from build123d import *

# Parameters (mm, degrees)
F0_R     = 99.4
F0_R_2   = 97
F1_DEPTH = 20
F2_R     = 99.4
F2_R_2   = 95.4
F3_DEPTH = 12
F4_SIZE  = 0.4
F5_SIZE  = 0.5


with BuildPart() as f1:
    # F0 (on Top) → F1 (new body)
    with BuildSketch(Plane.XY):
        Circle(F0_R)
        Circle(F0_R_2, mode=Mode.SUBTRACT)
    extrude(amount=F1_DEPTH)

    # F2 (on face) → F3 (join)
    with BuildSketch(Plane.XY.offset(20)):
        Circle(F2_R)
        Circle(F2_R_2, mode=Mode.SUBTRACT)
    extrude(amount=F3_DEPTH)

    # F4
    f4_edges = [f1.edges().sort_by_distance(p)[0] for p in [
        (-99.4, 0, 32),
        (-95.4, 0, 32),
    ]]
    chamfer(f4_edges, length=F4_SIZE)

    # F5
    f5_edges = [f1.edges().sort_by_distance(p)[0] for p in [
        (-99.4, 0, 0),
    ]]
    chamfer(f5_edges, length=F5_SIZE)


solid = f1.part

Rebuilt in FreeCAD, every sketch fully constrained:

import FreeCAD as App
import Part
import Sketcher
from FreeCAD import Vector


def edges_at(feature, points):
    """Names of the edges that pass closest to the given points."""
    edges = feature.Shape.Edges
    near = lambda p: min(range(len(edges)), key=lambda i: edges[i].distToShape(Part.Vertex(*p))[0])
    return sorted({f"Edge{near(p) + 1}" for p in points})

doc = App.newDocument("Part")
params = doc.addObject("Spreadsheet::Sheet", "Params")
for row, (alias, value) in enumerate([
    ("sketch1_diameter", "194 mm"),
    ("sketch1_diameter2", "198.8 mm"),
    ("pad1_length", "20 mm"),
    ("sketch2_diameter", "198.8 mm"),
    ("sketch2_diameter2", "190.8 mm"),
    ("pad2_length", "12 mm"),
    ("chamfer_size", "0.4 mm"),
    ("chamfer2_size", "0.5 mm"),
], start=1):
    params.set(f"A{row}", alias)
    params.set(f"B{row}", "=" + value)
    params.setAlias(f"B{row}", alias)

body = doc.addObject("PartDesign::Body", "Body")

# Sketch on XY plane
sketch1 = body.newObject("Sketcher::SketchObject", "Sketch")
sketch1.AttachmentSupport = (doc.getObject("XY_Plane"), [""])
sketch1.MapMode = "FlatFace"
sketch1.addGeometry([
    Part.Circle(Vector(0, 0, 0), Vector(0, 0, 1), 99),
    Part.Circle(Vector(0, 0, 0), Vector(0, 0, 1), 97),
], False)
sketch1.addConstraint([
    Sketcher.Constraint("Coincident", 0, 3, -1, 1),
    Sketcher.Constraint("Coincident", 1, 3, -1, 1),
    Sketcher.Constraint("Diameter", 1, 194.0),
    Sketcher.Constraint("Diameter", 0, 198.8),
])
sketch1.setExpression("Constraints[2]", "Params.sketch1_diameter")
sketch1.setExpression("Constraints[3]", "Params.sketch1_diameter2")
pad1 = body.newObject("PartDesign::Pad", "Pad")
pad1.Profile = sketch1
pad1.setExpression("Length", "Params.pad1_length")

# Sketch on XY plane
sketch2 = body.newObject("Sketcher::SketchObject", "Sketch001")
sketch2.AttachmentSupport = (doc.getObject("XY_Plane"), [""])
sketch2.MapMode = "FlatFace"
sketch2.AttachmentOffset = App.Placement(Vector(0, 0, 20), App.Rotation())
sketch2.addGeometry([
    Part.Circle(Vector(0, 0, 0), Vector(0, 0, 1), 99),
    Part.Circle(Vector(0, 0, 0), Vector(0, 0, 1), 95),
], False)
sketch2.addConstraint([
    Sketcher.Constraint("Coincident", 0, 3, -1, 1),
    Sketcher.Constraint("Coincident", 1, 3, -1, 1),
    Sketcher.Constraint("Diameter", 0, 198.8),
    Sketcher.Constraint("Diameter", 1, 190.8),
])
sketch2.setExpression("Constraints[2]", "Params.sketch2_diameter")
sketch2.setExpression("Constraints[3]", "Params.sketch2_diameter2")
pad2 = body.newObject("PartDesign::Pad", "Pad001")
pad2.Profile = sketch2
pad2.setExpression("Length", "Params.pad2_length")
doc.recompute()

chamfer = body.newObject("PartDesign::Chamfer", "Chamfer")
chamfer.Base = (pad2, edges_at(pad2, [(-99.4, 0, 32), (-95.4, 0, 32)]))
chamfer.setExpression("Size", "Params.chamfer_size")
doc.recompute()

chamfer2 = body.newObject("PartDesign::Chamfer", "Chamfer001")
chamfer2.Base = (chamfer, edges_at(chamfer, [(-99.4, 0, 0)]))
chamfer2.setExpression("Size", "Params.chamfer2_size")

doc.recompute()
